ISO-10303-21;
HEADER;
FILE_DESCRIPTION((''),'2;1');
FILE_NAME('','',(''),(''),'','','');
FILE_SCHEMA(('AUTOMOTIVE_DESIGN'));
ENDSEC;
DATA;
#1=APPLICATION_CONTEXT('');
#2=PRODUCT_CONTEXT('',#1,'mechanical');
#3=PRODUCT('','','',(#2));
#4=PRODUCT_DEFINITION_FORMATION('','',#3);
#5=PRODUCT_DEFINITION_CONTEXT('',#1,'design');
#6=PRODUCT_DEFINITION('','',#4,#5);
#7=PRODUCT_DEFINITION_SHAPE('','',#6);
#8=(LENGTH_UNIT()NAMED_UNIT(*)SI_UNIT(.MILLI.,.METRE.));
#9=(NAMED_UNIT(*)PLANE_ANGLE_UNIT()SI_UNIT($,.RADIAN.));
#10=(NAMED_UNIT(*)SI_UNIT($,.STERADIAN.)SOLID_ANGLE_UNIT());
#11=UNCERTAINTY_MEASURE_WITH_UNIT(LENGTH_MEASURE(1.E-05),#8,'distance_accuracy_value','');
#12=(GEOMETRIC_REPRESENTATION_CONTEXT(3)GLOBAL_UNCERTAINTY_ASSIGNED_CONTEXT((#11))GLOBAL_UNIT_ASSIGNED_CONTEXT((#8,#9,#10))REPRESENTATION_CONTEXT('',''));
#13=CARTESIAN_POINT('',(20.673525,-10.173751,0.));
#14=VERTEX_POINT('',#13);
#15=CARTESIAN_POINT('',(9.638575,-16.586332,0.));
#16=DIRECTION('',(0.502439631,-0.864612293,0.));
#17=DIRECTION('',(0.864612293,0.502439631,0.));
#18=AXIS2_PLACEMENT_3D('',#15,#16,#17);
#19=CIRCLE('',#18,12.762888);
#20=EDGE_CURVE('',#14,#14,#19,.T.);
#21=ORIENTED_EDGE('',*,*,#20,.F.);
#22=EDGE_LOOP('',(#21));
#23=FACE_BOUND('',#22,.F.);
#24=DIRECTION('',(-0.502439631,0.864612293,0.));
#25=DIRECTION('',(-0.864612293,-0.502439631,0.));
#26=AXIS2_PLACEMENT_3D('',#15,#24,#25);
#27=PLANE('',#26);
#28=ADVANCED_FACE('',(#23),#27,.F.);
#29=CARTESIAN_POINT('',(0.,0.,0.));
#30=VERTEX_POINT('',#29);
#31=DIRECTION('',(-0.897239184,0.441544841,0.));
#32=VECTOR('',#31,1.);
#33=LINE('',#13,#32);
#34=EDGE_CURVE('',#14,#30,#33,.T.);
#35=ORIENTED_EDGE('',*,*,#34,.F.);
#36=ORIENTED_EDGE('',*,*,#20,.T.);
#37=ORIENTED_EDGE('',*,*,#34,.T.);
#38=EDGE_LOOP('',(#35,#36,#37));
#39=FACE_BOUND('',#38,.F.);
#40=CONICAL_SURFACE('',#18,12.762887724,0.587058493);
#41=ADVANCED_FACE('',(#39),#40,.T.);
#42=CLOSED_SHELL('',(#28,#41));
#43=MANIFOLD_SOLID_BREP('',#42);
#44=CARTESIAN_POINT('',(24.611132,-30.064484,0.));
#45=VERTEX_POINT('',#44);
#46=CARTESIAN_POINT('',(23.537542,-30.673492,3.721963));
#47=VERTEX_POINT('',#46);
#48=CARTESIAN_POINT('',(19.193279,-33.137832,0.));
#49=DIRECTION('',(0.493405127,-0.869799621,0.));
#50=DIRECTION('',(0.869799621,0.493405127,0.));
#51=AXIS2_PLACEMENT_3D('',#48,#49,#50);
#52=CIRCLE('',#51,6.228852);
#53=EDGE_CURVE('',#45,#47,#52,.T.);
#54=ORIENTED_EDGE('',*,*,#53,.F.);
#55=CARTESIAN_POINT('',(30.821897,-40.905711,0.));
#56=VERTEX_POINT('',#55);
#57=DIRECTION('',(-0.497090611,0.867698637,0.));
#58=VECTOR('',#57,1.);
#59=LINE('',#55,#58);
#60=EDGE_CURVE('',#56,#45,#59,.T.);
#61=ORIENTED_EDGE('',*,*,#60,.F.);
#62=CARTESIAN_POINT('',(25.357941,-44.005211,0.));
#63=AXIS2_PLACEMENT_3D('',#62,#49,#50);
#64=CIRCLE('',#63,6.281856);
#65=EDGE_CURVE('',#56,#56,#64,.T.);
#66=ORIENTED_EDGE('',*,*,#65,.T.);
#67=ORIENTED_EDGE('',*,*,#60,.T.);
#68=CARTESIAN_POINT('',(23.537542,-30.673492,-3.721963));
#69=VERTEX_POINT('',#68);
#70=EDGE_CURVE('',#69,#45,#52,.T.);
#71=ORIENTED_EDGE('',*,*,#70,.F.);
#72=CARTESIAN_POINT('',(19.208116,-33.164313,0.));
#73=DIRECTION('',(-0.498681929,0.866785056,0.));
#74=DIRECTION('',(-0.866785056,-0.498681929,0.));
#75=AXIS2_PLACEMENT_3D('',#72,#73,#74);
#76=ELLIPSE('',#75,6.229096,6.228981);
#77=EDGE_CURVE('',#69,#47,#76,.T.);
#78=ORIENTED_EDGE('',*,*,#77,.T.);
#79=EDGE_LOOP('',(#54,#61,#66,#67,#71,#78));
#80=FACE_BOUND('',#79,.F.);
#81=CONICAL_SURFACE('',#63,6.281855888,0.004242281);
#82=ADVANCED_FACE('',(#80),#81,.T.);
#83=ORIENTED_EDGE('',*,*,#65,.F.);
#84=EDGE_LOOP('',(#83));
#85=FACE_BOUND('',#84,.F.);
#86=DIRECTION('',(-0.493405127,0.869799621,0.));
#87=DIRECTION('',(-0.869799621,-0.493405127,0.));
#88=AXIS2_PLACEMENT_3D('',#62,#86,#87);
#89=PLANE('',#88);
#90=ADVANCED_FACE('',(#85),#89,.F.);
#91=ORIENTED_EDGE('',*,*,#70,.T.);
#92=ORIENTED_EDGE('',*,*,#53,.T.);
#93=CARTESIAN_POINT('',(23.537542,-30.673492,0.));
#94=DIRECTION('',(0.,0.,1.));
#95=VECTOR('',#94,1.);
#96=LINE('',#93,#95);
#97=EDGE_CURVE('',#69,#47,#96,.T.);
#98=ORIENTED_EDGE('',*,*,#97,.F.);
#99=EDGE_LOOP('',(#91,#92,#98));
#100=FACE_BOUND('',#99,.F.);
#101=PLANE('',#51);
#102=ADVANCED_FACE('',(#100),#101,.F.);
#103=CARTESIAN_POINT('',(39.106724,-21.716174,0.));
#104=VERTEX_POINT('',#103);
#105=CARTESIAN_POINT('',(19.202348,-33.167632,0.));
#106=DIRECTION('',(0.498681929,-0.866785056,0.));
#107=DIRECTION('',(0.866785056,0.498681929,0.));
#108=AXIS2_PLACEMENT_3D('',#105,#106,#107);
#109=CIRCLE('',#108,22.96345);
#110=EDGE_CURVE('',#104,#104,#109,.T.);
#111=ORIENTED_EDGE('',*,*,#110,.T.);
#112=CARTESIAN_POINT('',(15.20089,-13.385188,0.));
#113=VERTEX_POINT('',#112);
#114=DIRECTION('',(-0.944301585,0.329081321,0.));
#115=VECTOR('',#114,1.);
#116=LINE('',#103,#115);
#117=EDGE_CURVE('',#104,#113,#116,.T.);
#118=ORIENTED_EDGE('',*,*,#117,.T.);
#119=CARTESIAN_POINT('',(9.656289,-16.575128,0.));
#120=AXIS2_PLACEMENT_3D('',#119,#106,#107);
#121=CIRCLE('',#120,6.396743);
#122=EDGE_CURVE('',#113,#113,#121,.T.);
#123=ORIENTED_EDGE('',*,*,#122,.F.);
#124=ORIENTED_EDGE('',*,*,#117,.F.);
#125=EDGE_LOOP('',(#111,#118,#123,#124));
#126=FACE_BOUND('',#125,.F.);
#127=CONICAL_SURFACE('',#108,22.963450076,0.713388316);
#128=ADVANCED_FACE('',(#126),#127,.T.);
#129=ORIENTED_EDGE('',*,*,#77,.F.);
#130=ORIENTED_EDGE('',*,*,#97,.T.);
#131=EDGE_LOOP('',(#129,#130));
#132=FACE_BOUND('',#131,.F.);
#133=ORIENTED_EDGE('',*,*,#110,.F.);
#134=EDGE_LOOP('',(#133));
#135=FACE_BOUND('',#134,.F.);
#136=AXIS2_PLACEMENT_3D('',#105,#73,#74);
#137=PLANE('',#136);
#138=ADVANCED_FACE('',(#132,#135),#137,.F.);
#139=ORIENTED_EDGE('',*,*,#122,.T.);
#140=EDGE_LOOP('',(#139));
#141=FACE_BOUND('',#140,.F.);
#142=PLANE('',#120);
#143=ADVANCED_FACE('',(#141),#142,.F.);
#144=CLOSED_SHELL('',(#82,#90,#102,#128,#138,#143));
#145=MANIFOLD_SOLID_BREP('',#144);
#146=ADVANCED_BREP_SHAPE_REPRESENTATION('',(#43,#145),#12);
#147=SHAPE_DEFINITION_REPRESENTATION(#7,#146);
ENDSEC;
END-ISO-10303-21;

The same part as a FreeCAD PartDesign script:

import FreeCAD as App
import Part
import Sketcher
from FreeCAD import Vector
Q = App.Units.Quantity


def add_polygon(sketch, points):
    """Adds a closed chain of lines whose ends are joined by coincident constraints."""
    first, n = sketch.GeometryCount, len(points)
    for a, b in zip(points, points[1:] + points[:1]):
        sketch.addGeometry(Part.LineSegment(App.Vector(*a, 0), App.Vector(*b, 0)), False)
    for i in range(n):
        sketch.addConstraint(Sketcher.Constraint("Coincident", first + i, 2, first + (i + 1) % n, 1))

doc = App.newDocument("Part")
body = doc.addObject("PartDesign::Body", "Body")

sketch1 = doc.addObject("Sketcher::SketchObject", "Sketch")
body.addObject(sketch1)
sketch1.AttachmentSupport = (doc.XY_Plane, [""])
sketch1.MapMode = "FlatFace"
add_polygon(sketch1, [(21, -10), (0, 0), (10, -17)])
sketch1.addGeometry(Part.LineSegment(Vector(0, 0, 0), Vector(10, -17, 0)), True)
sketch1.addConstraint(Sketcher.Constraint("Coincident", 0, 2, -1, 1))
sketch1.addConstraint(Sketcher.Constraint("Coincident", 3, 1, -1, 1))
sketch1.addConstraint(Sketcher.Constraint("Coincident", 3, 2, 1, 2))
sketch1.addConstraint(Sketcher.Constraint("Perpendicular", 1, 2))
sketch1.addConstraint(Sketcher.Constraint("Distance", 1, Q("19.183548 mm")))
sketch1.addConstraint(Sketcher.Constraint("DistanceY", 1, 2, -1, 1, Q("16.586332 mm")))
sketch1.addConstraint(Sketcher.Constraint("DistanceY", 2, 2, -1, 1, Q("10.173751 mm")))
revolution = doc.addObject("PartDesign::Revolution", "Revolution")
body.addObject(revolution)
revolution.Profile = sketch1
revolution.ReferenceAxis = (sketch1, ["Axis0"])
revolution.Angle = 360
body2 = doc.addObject("PartDesign::Body", "Body001")

sketch2 = doc.addObject("Sketcher::SketchObject", "Sketch001")
body2.addObject(sketch2)
sketch2.AttachmentSupport = (doc.getObject("XY_Plane001"), [""])
sketch2.MapMode = "FlatFace"
add_polygon(sketch2, [(15, -13), (10, -17), (19, -33), (39, -22)])
sketch2.addGeometry(Part.LineSegment(Vector(10, -17, 0), Vector(19, -33, 0)), True)
sketch2.addConstraint(Sketcher.Constraint("Coincident", 4, 1, 0, 2))
sketch2.addConstraint(Sketcher.Constraint("Coincident", 4, 2, 1, 2))
sketch2.addConstraint(Sketcher.Constraint("Perpendicular", 0, 1))
sketch2.addConstraint(Sketcher.Constraint("Perpendicular", 1, 2))
sketch2.addConstraint(Sketcher.Constraint("DistanceX", 0, 2, 3, 2, Q("5.544601 mm")))
sketch2.addConstraint(Sketcher.Constraint("Distance", 1, Q("19.142582 mm")))
sketch2.addConstraint(Sketcher.Constraint("Distance", 2, Q("22.96345 mm")))
sketch2.addConstraint(Sketcher.Constraint("Distance", 3, Q("25.315889 mm")))
sketch2.addConstraint(Sketcher.Constraint("DistanceX", -1, 1, 0, 2, Q("9.656289 mm")))
sketch2.addConstraint(Sketcher.Constraint("DistanceY", 1, 2, -1, 1, Q("33.167632 mm")))
revolution2 = doc.addObject("PartDesign::Revolution", "Revolution001")
body2.addObject(revolution2)
revolution2.Profile = sketch2
revolution2.ReferenceAxis = (sketch2, ["Axis0"])
revolution2.Angle = 360

sketch3 = doc.addObject("Sketcher::SketchObject", "Sketch002")
body2.addObject(sketch3)
sketch3.AttachmentSupport = (doc.getObject("XY_Plane001"), [""])
sketch3.MapMode = "FlatFace"
add_polygon(sketch3, [(24.611132, -30.064484), (19.193279, -33.137832), (25.357941, -44.005211), (30.821897, -40.905711)])
sketch3.addGeometry(Part.LineSegment(Vector(19.193279, -33.137832, 0), Vector(25.357941, -44.005211, 0)), True)
sketch3.addConstraint(Sketcher.Constraint("Coincident", 4, 1, 0, 2))
sketch3.addConstraint(Sketcher.Constraint("Coincident", 4, 2, 1, 2))
sketch3.addConstraint(Sketcher.Constraint("DistanceY", 1, 2, 2, 2, Q("3.0995 mm")))
sketch3.addConstraint(Sketcher.Constraint("Distance", 3, Q("12.49423 mm")))
sketch3.addConstraint(Sketcher.Constraint("DistanceX", -1, 1, 0, 2, Q("19.193279 mm")))
sketch3.addConstraint(Sketcher.Constraint("DistanceY", 0, 2, -1, 1, Q("33.137832 mm")))
sketch3.addConstraint(Sketcher.Constraint("DistanceX", -1, 1, 1, 2, Q("25.357941 mm")))
sketch3.addConstraint(Sketcher.Constraint("DistanceY", 1, 2, -1, 1, Q("44.005211 mm")))
sketch3.addConstraint(Sketcher.Constraint("DistanceX", 3, 2, 1, 2, Q("0.746809 mm")))
sketch3.addConstraint(Sketcher.Constraint("Distance", 0, Q("6.228852 mm")))
revolution3 = doc.addObject("PartDesign::Revolution", "Revolution002")
body2.addObject(revolution3)
revolution3.Profile = sketch3
revolution3.ReferenceAxis = (sketch3, ["Axis0"])
revolution3.Angle = 360

doc.recompute()
